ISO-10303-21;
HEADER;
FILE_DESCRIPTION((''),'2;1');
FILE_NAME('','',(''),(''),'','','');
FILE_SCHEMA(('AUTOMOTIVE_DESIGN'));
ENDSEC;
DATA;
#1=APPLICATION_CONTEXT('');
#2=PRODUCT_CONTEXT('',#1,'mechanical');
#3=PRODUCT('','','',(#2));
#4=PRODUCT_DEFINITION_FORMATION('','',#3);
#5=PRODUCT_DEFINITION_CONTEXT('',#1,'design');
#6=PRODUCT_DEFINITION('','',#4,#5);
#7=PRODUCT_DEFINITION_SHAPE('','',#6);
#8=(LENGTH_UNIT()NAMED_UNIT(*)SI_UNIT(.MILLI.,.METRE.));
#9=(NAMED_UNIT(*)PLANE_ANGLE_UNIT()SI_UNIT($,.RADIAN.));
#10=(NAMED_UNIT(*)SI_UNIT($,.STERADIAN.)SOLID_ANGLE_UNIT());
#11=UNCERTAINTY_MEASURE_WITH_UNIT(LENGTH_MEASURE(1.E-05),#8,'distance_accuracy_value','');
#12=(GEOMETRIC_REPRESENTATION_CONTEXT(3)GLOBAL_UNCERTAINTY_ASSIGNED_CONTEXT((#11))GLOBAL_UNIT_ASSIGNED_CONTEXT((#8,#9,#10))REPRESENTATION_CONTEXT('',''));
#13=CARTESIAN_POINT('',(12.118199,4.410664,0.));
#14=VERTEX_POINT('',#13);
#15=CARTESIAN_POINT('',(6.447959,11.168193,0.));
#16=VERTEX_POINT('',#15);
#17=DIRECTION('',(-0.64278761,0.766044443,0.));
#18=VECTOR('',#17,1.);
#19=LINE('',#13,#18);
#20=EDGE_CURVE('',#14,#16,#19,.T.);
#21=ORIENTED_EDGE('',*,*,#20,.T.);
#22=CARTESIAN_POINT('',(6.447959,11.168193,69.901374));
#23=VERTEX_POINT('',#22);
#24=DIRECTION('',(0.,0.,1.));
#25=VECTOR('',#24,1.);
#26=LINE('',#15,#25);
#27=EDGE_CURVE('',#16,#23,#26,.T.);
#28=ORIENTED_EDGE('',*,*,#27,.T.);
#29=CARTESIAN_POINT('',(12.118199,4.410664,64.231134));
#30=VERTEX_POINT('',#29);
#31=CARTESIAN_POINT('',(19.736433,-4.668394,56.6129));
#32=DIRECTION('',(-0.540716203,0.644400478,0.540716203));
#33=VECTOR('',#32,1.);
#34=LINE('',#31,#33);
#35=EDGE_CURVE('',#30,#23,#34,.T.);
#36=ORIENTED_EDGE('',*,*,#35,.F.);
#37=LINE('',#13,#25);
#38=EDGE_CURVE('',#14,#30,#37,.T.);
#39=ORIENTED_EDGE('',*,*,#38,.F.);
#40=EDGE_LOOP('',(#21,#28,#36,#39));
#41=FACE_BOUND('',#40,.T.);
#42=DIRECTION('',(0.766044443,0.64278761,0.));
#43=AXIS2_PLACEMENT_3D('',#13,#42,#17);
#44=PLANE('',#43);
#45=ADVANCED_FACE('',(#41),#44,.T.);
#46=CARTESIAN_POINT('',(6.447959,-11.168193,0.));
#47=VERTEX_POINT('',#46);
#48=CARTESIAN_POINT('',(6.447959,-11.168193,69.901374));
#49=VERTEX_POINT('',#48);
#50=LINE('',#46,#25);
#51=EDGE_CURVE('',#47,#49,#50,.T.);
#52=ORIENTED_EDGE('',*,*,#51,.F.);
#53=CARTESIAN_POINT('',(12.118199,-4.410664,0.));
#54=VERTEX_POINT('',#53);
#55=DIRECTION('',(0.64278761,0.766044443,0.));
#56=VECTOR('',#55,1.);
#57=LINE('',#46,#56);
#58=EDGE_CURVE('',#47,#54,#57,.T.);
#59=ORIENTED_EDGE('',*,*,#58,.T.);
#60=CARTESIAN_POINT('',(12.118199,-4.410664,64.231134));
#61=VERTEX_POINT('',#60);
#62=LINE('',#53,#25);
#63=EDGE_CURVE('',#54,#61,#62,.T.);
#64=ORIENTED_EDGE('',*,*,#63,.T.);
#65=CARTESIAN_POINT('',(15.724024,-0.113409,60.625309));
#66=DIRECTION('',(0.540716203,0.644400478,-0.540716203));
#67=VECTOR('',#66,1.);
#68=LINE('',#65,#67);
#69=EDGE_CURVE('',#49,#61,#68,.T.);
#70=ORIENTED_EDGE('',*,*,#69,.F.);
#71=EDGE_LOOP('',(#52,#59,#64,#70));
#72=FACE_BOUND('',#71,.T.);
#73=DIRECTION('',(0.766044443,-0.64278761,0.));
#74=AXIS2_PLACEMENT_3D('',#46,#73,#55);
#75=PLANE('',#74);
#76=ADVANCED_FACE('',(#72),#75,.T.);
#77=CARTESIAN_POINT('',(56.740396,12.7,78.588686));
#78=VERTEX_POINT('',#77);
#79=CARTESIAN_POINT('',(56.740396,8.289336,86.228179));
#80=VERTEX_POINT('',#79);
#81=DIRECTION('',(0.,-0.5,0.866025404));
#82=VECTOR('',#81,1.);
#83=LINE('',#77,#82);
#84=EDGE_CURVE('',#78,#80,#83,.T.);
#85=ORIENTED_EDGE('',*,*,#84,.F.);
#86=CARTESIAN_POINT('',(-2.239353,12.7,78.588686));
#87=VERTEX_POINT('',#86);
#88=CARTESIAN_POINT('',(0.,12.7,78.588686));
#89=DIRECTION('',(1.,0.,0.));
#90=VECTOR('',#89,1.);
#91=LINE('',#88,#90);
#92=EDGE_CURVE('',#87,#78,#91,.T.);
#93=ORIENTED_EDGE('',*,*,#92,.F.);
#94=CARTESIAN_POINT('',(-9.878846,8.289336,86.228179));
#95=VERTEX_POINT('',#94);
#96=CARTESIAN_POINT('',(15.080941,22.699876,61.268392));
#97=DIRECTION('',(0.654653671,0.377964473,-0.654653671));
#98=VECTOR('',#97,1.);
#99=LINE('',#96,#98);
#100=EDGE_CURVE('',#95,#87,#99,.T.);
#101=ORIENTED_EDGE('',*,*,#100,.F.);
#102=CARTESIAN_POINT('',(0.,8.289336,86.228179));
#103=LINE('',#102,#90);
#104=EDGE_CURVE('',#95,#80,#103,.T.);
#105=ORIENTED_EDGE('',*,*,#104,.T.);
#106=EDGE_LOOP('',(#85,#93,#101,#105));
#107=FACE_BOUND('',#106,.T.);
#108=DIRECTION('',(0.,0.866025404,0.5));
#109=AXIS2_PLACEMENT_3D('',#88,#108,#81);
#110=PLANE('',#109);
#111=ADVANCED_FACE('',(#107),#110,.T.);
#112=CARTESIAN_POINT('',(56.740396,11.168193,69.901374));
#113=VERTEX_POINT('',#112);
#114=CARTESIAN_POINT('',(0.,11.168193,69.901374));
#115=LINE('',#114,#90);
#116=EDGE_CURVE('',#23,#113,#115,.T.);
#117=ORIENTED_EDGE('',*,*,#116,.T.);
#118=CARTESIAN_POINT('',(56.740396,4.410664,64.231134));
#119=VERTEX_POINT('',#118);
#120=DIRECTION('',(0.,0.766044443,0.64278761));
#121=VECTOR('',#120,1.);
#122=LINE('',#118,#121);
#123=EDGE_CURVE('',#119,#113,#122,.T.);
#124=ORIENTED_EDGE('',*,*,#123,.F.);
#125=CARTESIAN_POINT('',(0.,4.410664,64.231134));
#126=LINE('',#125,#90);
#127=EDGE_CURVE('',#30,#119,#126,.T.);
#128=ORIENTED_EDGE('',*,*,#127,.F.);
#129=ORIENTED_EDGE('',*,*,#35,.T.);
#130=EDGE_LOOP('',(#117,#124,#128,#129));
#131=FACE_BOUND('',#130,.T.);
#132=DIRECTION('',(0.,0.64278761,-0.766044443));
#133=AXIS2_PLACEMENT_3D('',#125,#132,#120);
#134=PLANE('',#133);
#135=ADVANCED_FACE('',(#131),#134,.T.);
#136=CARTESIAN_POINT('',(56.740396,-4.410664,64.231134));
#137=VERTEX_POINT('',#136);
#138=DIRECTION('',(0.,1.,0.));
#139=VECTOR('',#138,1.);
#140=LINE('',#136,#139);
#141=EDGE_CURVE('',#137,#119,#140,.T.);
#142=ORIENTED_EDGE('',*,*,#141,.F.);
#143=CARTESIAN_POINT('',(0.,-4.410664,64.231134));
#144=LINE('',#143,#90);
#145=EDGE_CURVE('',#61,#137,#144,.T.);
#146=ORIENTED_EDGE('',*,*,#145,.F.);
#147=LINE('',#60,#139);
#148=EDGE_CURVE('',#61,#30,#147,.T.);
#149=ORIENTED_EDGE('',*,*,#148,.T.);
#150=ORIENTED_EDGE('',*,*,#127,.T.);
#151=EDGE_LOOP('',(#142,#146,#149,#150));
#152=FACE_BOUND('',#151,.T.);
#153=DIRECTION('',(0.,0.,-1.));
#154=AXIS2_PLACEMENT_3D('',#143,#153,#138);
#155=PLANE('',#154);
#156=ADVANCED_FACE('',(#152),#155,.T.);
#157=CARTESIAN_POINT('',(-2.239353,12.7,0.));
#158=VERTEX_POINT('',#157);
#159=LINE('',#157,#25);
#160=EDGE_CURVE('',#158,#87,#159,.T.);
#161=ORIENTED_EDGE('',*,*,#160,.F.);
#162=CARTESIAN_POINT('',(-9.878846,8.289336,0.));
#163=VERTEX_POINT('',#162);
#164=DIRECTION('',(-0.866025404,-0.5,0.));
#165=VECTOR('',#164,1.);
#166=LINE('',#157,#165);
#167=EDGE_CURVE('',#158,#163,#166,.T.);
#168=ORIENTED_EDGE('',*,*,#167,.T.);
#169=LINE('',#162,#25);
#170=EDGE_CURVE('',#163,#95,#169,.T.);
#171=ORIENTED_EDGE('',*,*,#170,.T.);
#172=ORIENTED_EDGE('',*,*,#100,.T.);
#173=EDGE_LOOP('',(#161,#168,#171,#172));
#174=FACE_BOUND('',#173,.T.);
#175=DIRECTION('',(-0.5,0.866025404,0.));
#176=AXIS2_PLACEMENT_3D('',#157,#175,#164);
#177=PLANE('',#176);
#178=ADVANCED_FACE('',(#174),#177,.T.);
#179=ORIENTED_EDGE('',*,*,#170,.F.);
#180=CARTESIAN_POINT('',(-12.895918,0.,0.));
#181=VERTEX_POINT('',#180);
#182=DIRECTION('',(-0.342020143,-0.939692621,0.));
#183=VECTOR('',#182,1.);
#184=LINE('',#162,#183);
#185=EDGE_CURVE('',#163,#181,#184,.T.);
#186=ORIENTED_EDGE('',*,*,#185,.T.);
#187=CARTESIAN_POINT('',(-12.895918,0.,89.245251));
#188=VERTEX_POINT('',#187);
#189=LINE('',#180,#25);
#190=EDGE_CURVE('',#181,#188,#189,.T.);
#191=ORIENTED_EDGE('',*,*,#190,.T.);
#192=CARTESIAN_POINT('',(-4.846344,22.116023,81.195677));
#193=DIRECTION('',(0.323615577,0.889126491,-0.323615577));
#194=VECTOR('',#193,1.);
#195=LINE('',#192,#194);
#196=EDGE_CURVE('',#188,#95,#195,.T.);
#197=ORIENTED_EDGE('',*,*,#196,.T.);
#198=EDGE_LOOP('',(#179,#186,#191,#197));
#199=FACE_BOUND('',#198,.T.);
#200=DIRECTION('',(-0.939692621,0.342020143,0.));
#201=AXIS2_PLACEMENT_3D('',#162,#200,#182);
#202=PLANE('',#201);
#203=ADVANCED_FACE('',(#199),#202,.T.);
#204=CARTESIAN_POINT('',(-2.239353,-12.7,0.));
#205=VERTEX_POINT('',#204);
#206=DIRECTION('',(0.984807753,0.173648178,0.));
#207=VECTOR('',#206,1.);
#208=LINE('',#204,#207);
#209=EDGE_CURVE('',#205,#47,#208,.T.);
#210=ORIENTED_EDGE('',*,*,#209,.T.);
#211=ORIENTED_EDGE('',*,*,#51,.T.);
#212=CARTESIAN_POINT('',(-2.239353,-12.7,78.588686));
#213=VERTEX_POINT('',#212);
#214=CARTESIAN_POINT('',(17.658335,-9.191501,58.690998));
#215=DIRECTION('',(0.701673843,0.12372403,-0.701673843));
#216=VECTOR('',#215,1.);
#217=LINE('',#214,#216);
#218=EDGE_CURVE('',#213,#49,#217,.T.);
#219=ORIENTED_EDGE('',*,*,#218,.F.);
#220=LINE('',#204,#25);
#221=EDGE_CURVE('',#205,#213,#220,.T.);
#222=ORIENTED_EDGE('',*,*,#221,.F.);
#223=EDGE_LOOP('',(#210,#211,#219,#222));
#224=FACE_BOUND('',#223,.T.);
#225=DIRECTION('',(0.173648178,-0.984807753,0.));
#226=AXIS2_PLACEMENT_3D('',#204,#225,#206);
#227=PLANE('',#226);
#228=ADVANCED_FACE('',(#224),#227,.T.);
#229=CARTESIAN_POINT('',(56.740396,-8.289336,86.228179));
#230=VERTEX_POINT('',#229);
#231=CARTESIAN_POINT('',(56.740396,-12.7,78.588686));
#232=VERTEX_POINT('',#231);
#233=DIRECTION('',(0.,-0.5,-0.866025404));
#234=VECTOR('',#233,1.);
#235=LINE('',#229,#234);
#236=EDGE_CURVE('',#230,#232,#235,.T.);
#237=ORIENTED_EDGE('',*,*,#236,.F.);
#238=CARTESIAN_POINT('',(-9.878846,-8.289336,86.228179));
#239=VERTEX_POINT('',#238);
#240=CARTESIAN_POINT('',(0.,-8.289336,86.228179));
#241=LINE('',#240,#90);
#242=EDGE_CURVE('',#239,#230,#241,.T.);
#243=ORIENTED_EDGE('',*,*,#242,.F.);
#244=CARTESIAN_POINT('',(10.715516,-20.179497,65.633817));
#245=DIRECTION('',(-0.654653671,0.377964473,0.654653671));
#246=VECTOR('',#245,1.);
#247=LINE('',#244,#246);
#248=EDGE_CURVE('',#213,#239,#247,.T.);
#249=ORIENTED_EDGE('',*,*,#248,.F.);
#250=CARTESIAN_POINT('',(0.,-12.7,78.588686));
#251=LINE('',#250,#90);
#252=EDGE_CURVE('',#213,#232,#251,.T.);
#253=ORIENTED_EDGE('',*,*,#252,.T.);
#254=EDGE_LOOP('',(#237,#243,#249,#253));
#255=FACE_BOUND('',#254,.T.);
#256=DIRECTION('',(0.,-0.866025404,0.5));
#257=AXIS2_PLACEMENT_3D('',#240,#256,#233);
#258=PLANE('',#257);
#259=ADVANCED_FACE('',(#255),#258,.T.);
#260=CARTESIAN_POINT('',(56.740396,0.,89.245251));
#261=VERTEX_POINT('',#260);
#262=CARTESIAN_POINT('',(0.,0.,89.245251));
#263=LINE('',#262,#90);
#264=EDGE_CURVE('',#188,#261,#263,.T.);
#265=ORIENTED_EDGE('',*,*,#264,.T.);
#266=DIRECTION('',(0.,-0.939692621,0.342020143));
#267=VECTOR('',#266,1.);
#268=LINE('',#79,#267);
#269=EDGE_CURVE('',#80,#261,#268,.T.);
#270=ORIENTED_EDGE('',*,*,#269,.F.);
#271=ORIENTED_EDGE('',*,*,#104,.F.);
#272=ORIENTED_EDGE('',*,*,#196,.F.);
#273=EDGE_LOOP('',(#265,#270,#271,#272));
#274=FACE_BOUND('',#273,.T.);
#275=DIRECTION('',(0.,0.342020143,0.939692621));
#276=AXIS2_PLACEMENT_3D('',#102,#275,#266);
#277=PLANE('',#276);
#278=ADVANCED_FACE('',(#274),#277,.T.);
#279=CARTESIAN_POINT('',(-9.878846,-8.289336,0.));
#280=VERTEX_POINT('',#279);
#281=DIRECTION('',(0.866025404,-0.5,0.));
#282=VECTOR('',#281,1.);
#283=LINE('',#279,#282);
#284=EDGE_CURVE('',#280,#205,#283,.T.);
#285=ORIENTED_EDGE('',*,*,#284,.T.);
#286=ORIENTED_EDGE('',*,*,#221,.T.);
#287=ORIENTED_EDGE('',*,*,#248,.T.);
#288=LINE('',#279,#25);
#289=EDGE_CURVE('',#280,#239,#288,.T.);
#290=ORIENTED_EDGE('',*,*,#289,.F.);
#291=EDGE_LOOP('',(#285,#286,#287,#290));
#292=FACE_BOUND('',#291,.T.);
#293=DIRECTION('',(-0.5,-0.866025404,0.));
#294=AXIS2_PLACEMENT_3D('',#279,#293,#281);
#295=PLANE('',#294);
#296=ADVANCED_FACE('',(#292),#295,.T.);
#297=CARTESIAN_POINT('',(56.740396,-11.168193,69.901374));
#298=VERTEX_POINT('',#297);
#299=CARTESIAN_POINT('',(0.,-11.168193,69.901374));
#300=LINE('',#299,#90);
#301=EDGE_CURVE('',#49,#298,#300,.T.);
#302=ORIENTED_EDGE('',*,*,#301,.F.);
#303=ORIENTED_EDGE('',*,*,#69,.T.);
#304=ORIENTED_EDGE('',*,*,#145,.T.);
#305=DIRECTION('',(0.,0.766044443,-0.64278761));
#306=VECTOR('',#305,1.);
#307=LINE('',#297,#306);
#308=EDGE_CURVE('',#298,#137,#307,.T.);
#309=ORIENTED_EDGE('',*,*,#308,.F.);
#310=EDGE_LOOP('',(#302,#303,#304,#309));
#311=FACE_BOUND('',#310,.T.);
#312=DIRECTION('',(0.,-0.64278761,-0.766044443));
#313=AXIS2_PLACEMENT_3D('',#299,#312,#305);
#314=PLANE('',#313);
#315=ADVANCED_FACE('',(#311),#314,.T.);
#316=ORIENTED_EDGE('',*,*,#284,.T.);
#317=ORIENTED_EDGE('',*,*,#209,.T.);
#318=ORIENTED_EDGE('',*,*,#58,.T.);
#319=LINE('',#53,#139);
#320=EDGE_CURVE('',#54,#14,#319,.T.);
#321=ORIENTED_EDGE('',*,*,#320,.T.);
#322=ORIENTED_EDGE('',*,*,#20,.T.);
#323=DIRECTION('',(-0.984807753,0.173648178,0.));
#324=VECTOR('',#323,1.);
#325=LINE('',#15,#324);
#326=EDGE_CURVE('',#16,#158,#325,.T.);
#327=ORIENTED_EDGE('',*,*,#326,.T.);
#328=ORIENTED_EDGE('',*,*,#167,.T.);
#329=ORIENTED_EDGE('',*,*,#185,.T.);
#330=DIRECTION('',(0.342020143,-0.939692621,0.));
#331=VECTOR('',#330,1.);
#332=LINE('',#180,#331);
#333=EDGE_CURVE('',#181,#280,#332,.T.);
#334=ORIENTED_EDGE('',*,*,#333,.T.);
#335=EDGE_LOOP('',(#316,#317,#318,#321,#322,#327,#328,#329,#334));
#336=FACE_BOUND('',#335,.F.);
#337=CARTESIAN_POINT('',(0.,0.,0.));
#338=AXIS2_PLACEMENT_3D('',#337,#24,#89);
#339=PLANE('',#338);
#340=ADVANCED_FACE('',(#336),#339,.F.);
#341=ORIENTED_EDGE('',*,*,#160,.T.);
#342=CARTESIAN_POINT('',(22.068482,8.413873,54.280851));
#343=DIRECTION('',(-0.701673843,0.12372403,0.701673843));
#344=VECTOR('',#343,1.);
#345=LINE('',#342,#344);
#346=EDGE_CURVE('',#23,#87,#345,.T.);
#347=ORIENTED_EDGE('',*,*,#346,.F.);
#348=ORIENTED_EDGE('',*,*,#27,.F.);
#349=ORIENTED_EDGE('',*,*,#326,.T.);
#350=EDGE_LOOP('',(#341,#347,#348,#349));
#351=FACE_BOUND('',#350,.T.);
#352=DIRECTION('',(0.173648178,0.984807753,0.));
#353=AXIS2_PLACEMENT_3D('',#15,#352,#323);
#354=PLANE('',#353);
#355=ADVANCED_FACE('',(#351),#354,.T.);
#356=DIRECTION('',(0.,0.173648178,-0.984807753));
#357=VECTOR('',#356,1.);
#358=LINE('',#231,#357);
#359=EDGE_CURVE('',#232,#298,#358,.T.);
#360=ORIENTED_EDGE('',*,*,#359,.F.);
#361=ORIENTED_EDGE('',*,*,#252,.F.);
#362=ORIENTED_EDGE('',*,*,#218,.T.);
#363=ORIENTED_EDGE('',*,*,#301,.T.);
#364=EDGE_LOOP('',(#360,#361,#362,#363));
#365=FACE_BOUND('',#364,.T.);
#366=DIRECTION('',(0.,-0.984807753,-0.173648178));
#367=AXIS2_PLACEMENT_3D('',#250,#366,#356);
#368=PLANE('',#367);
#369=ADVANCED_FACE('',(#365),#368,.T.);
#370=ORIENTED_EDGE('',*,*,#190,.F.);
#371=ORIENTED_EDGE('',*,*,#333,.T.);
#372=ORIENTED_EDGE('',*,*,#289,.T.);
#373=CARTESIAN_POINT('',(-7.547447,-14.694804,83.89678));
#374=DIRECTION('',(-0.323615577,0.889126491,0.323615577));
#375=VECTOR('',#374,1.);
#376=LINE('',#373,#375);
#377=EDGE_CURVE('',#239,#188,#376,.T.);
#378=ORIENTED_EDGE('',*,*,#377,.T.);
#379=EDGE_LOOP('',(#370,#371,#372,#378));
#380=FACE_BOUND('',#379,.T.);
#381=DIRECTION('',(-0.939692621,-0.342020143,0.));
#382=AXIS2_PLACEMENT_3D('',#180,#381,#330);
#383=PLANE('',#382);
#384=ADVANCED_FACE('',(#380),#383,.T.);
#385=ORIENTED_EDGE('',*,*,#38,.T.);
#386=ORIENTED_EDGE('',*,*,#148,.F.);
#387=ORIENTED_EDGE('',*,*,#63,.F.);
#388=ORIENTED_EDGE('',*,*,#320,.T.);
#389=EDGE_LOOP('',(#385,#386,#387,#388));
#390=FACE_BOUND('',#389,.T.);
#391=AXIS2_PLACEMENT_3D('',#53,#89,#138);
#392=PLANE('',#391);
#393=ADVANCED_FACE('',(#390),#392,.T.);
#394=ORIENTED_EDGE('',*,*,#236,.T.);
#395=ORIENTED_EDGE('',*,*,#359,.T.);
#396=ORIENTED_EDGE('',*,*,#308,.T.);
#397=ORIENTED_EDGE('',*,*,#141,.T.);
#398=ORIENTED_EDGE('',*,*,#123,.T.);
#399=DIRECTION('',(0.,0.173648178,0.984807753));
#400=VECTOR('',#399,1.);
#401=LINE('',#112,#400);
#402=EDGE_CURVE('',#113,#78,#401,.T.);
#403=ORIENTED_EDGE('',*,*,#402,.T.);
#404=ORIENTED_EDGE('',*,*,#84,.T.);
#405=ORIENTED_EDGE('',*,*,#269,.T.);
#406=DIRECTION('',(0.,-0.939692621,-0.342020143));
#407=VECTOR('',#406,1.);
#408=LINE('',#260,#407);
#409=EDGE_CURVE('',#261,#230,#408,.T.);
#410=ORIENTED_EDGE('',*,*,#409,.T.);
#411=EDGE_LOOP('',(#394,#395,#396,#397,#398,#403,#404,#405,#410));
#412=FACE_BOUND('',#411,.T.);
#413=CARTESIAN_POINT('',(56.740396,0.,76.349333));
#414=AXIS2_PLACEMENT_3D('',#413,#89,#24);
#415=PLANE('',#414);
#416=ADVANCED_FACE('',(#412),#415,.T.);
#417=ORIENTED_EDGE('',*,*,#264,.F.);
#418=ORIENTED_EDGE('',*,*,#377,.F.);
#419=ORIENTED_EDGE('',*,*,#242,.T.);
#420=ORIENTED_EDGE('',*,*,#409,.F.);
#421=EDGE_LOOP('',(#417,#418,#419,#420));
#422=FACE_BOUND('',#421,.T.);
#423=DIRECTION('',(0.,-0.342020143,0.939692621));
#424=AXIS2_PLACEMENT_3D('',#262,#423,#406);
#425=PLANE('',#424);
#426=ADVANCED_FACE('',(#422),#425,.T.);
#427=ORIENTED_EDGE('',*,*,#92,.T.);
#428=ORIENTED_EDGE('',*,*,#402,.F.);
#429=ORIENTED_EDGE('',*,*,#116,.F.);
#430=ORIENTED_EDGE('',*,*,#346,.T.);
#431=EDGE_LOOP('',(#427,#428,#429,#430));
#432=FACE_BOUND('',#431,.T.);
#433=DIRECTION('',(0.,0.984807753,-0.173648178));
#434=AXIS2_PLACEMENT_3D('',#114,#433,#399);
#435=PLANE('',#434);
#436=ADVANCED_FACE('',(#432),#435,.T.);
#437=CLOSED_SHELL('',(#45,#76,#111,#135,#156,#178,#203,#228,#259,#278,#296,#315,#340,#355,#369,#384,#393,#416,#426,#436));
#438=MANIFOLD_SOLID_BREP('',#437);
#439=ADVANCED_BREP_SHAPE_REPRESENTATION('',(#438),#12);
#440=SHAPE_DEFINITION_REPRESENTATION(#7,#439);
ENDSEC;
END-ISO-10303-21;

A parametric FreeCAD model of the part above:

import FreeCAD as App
import Part
import Sketcher

V = App.Vector
Q = App.Units.Quantity

doc = App.newDocument("Part")
body = doc.addObject("PartDesign::Body", "Body")

sketch1 = doc.addObject("Sketcher::SketchObject", "Sketch")
body.addObject(sketch1)
sketch1.AttachmentSupport = (doc.XY_Plane, [""])
sketch1.MapMode = "FlatFace"
sketch1.addGeometry(Part.LineSegment(V(12, -4, 0), V(12, 4, 0)), False)
sketch1.addGeometry(Part.LineSegment(V(12, 4, 0), V(6, 11, 0)), False)
sketch1.addGeometry(Part.LineSegment(V(6, 11, 0), V(-2, 13, 0)), False)
sketch1.addGeometry(Part.LineSegment(V(-2, 13, 0), V(-10, 8, 0)), False)
sketch1.addGeometry(Part.LineSegment(V(-10, 8, 0), V(-13, 0, 0)), False)
sketch1.addGeometry(Part.LineSegment(V(-13, 0, 0), V(-10, -8, 0)), False)
sketch1.addGeometry(Part.LineSegment(V(-10, -8, 0), V(-2, -13, 0)), False)
sketch1.addGeometry(Part.LineSegment(V(-2, -13, 0), V(6, -11, 0)), False)
sketch1.addGeometry(Part.LineSegment(V(6, -11, 0), V(12, -4, 0)), False)
sketch1.addConstraint(Sketcher.Constraint("Coincident", 0, 2, 1, 1))
sketch1.addConstraint(Sketcher.Constraint("Coincident", 1, 2, 2, 1))
sketch1.addConstraint(Sketcher.Constraint("Coincident", 2, 2, 3, 1))
sketch1.addConstraint(Sketcher.Constraint("Coincident", 3, 2, 4, 1))
sketch1.addConstraint(Sketcher.Constraint("Coincident", 4, 2, 5, 1))
sketch1.addConstraint(Sketcher.Constraint("Coincident", 5, 2, 6, 1))
sketch1.addConstraint(Sketcher.Constraint("Coincident", 6, 2, 7, 1))
sketch1.addConstraint(Sketcher.Constraint("Coincident", 7, 2, 8, 1))
sketch1.addConstraint(Sketcher.Constraint("Coincident", 8, 2, 0, 1))
sketch1.addConstraint(Sketcher.Constraint("Vertical", 0))
sketch1.addConstraint(Sketcher.Constraint("Symmetric", 3, 2, 5, 2, -1))
sketch1.addConstraint(Sketcher.Constraint("Symmetric", 2, 2, 6, 2, -1))
sketch1.addConstraint(Sketcher.Constraint("Symmetric", 1, 2, 7, 2, -1))
sketch1.addConstraint(Sketcher.Constraint("PointOnObject", 4, 2, -1))
sketch1.addConstraint(Sketcher.Constraint("Equal", 1, 2))
sketch1.addConstraint(Sketcher.Constraint("Equal", 2, 3))
sketch1.addConstraint(Sketcher.Constraint("Equal", 3, 4))
sketch1.addConstraint(Sketcher.Constraint("Equal", 7, 8))
sketch1.addConstraint(Sketcher.Constraint("Angle", 1, Q("130 deg")))
sketch1.addConstraint(Sketcher.Constraint("Angle", 2, Q("170 deg")))
sketch1.addConstraint(Sketcher.Constraint("Angle", 3, Q("-150 deg")))
sketch1.addConstraint(Sketcher.Constraint("Angle", 4, Q("-110 deg")))
sketch1.addConstraint(Sketcher.Constraint("DistanceY", -1, 1, 2, 2, 12.7))
sketch1.addConstraint(Sketcher.Constraint("DistanceX", -1, 1, 0, 2, 12.118199))

sketch2 = doc.addObject("Sketcher::SketchObject", "Sketch001")
body.addObject(sketch2)
sketch2.AttachmentSupport = (doc.XZ_Plane, [""])
sketch2.MapMode = "FlatFace"
sketch2.addGeometry(Part.LineSegment(V(0, 0, 0), V(0, 76, 0)), False)
sketch2.addGeometry(Part.LineSegment(V(0, 76, 0), V(57, 76, 0)), False)
sketch2.addConstraint(Sketcher.Constraint("Coincident", 0, 2, 1, 1))
sketch2.addConstraint(Sketcher.Constraint("Vertical", 0))
sketch2.addConstraint(Sketcher.Constraint("Horizontal", 1))
sketch2.addConstraint(Sketcher.Constraint("Coincident", 0, 1, -1, 1))
sketch2.addConstraint(Sketcher.Constraint("DistanceX", 1, 1, 1, 2, 56.740396))
sketch2.addConstraint(Sketcher.Constraint("DistanceY", 0, 1, 0, 2, 76.349333))
doc.recompute()

additivepipe = doc.addObject("PartDesign::AdditivePipe", "AdditivePipe")
body.addObject(additivepipe)
additivepipe.Profile = sketch1
additivepipe.Spine = (sketch2, ["Edge1", "Edge2"])
additivepipe.Transition = "Right corner"

doc.recompute()
